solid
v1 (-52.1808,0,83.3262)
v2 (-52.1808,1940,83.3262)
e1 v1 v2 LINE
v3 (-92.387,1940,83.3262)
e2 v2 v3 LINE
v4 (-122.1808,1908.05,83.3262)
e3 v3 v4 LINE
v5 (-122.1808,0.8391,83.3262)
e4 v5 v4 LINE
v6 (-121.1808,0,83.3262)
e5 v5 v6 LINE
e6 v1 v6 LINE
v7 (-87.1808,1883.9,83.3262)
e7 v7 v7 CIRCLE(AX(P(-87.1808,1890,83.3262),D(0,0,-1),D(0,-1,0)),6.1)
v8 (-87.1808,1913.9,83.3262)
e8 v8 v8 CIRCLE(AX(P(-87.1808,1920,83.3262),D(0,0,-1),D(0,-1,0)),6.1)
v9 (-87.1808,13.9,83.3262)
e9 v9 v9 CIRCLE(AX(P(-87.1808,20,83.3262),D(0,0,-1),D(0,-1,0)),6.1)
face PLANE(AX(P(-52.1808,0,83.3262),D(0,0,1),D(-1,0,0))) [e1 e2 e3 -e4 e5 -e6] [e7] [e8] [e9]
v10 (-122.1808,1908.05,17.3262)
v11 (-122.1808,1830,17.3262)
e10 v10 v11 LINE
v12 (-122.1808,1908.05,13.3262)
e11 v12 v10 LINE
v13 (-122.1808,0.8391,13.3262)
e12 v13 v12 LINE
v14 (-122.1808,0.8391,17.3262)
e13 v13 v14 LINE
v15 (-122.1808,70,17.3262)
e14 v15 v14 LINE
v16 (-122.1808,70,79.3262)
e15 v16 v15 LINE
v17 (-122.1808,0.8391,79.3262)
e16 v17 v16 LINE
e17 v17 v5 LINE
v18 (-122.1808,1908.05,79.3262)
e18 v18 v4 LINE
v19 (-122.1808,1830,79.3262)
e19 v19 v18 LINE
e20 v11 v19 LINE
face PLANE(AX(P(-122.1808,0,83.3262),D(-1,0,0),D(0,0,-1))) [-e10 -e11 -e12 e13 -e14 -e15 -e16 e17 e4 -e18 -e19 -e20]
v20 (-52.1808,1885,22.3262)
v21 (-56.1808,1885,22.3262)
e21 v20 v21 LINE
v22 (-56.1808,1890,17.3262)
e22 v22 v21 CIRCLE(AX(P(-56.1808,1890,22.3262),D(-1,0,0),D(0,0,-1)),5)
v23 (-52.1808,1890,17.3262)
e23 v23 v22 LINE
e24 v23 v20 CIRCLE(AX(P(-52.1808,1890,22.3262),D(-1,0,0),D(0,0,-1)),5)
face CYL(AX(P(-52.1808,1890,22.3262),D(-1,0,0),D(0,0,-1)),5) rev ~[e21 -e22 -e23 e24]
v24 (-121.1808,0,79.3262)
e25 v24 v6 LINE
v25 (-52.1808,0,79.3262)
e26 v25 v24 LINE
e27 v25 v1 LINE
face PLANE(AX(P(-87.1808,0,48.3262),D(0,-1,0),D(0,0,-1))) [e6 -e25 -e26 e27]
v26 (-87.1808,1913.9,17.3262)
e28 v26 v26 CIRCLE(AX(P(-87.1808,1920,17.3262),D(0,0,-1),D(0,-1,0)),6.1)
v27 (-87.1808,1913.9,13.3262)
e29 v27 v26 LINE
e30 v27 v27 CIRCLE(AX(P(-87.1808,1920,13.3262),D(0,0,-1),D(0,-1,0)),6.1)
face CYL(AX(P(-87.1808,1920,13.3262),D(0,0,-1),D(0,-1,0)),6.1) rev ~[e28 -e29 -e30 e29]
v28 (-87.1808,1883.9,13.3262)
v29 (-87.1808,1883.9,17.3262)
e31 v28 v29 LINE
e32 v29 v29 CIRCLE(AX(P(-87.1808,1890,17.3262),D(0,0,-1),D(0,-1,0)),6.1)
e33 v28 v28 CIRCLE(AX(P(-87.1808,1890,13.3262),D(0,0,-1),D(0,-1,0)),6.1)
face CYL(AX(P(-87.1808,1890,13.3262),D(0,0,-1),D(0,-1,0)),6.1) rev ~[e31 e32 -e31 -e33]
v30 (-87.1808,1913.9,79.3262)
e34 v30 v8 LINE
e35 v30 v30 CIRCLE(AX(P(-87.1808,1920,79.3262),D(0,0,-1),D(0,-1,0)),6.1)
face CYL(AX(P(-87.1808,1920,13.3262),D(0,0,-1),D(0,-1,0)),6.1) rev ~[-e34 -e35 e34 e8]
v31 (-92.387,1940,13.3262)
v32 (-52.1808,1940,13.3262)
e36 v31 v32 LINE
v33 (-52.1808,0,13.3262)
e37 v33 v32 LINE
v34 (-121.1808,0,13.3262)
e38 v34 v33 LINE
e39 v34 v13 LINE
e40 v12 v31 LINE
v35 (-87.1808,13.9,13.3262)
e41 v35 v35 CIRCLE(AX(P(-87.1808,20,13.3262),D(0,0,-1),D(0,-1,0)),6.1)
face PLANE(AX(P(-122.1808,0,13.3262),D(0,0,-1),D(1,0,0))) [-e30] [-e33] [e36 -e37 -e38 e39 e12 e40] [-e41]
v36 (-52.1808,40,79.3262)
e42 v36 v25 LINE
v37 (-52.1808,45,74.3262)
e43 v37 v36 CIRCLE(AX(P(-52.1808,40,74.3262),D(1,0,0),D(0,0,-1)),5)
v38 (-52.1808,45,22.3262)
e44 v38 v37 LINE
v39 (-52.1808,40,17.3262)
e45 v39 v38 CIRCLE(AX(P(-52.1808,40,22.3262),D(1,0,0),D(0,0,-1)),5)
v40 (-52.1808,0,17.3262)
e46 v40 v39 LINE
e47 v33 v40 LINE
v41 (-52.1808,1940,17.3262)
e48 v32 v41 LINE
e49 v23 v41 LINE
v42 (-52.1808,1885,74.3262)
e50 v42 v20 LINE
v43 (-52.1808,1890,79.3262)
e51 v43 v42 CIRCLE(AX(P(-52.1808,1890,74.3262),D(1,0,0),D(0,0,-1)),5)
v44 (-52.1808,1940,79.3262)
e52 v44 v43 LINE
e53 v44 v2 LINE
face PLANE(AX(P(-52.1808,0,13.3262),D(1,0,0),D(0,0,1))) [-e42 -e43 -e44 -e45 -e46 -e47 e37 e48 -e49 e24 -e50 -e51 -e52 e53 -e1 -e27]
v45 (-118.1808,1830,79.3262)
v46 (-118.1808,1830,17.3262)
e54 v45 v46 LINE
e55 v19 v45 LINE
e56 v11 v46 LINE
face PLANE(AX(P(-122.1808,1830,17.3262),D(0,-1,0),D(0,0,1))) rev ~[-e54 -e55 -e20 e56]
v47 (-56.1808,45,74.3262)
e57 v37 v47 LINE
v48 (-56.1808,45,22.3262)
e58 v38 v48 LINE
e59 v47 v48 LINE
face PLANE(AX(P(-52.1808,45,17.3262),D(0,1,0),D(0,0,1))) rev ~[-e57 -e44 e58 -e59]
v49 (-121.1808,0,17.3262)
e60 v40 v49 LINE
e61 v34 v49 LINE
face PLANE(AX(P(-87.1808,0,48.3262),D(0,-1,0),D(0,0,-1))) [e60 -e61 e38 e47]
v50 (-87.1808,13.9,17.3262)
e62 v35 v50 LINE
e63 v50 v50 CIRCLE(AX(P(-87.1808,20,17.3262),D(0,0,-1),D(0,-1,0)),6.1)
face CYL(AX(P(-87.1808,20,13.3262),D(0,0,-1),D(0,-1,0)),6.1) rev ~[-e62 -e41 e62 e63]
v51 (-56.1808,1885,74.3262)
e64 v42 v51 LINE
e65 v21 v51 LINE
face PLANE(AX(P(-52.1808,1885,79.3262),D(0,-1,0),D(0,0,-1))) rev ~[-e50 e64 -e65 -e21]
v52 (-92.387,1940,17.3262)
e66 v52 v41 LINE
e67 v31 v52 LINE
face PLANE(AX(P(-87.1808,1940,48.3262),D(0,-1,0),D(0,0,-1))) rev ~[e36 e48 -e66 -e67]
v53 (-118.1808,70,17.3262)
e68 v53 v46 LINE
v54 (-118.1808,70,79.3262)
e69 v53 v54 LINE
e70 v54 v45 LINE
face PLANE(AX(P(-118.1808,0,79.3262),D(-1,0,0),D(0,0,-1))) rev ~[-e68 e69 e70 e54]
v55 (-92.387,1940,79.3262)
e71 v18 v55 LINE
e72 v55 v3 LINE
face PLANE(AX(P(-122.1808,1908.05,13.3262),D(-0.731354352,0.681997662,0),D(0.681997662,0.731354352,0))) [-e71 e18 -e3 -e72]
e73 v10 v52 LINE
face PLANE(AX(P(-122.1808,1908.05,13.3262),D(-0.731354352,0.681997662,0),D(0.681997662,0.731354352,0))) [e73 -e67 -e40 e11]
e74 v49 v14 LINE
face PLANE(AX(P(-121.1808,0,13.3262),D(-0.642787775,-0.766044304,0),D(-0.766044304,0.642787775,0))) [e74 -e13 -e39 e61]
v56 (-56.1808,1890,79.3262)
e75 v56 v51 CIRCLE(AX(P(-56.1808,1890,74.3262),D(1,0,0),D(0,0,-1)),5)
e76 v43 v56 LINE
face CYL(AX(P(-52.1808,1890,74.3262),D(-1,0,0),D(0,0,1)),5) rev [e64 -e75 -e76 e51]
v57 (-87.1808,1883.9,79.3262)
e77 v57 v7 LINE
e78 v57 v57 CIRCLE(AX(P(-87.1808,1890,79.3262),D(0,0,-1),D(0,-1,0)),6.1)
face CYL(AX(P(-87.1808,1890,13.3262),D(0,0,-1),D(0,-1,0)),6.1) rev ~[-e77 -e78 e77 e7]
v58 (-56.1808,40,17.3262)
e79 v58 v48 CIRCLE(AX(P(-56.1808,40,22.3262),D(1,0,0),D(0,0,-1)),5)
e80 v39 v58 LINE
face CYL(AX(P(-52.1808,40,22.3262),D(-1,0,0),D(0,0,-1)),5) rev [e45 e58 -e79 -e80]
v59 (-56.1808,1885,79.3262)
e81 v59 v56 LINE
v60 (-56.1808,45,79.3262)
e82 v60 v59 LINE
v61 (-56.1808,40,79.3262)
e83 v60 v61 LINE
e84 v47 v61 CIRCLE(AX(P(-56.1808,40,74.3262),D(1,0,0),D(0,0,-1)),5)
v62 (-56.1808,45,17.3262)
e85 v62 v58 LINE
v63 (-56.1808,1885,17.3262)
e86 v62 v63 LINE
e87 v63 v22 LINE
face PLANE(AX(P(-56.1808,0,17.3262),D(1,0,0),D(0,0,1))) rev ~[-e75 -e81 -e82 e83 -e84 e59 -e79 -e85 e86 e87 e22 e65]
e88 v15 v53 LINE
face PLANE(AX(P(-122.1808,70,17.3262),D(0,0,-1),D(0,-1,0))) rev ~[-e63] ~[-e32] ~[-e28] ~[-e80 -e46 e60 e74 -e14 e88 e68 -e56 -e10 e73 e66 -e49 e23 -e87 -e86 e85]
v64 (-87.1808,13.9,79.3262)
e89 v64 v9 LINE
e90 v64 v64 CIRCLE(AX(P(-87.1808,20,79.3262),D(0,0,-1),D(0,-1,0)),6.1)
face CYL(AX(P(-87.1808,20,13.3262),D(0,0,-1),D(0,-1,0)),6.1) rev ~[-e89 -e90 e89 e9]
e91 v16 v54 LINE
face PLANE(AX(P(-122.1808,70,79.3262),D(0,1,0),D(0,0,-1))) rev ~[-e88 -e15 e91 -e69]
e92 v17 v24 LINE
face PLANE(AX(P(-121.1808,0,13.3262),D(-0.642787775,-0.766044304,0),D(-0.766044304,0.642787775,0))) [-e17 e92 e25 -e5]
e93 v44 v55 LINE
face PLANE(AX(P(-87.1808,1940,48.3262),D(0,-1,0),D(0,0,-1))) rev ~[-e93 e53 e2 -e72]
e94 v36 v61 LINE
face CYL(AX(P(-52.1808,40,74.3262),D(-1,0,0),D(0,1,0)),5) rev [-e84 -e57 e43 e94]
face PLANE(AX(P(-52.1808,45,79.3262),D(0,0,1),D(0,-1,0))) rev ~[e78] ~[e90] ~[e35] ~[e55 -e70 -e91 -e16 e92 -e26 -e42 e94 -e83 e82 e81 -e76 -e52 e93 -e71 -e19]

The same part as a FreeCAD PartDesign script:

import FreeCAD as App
import Part
import Sketcher
from FreeCAD import Vector
Q = App.Units.Quantity


def edges_at(feature, points):
    """Names of the edges that pass closest to the given points."""
    edges = feature.Shape.Edges
    near = lambda p: min(range(len(edges)), key=lambda i: edges[i].distToShape(Part.Vertex(*p))[0])
    return sorted({f"Edge{near(p) + 1}" for p in points})


def add_polygon(sketch, points):
    """Adds a closed chain of lines whose ends are joined by coincident constraints."""
    first, n = sketch.GeometryCount, len(points)
    for a, b in zip(points, points[1:] + points[:1]):
        sketch.addGeometry(Part.LineSegment(App.Vector(*a, 0), App.Vector(*b, 0)), False)
    for i in range(n):
        sketch.addConstraint(Sketcher.Constraint("Coincident", first + i, 2, first + (i + 1) % n, 1))

doc = App.newDocument("Part")
params = doc.addObject("Spreadsheet::Sheet", "Params")
for row, (alias, value) in enumerate([
    ("sketch1_width", "70 mm"),
    ("sketch1_width2", "62 mm"),
    ("pad1_length", "1940 mm"),
    ("sketch2_diameter", "12.2 mm"),
    ("sketch3_width", "45 mm"),
    ("sketch3_width2", "55 mm"),
    ("sketch3_height", "62 mm"),
    ("pocket2_length", "4 mm"),
    ("sketch4_height", "31.95 mm"),
    ("sketch5_width", "1 mm"),
    ("sketch6_width", "110 mm"),
    ("sketch6_height", "62 mm"),
    ("sketch7_width", "70 mm"),
    ("sketch7_height", "62 mm"),
    ("fillet_radius", "5 mm"),
], start=1):
    params.set(f"A{row}", alias)
    params.set(f"B{row}", "=" + value)
    params.setAlias(f"B{row}", alias)

body = doc.addObject("PartDesign::Body", "Body")

# Sketch on XZ plane
sketch1 = body.newObject("Sketcher::SketchObject", "Sketch")
sketch1.AttachmentSupport = (doc.getObject("XZ_Plane"), [""])
sketch1.MapMode = "FlatFace"
add_polygon(sketch1, [(-122, 83), (-122, 13), (-52, 13), (-52, 83)])  # lines 0-3
add_polygon(sketch1, [(-56, 17), (-118, 17), (-118, 79), (-56, 79)])  # lines 4-7
sketch1.addConstraint([
    Sketcher.Constraint("Vertical", 0),
    Sketcher.Constraint("Horizontal", 1),
    Sketcher.Constraint("Vertical", 2),
    Sketcher.Constraint("Horizontal", 3),
    Sketcher.Constraint("Horizontal", 4),
    Sketcher.Constraint("Vertical", 5),
    Sketcher.Constraint("Horizontal", 6),
    Sketcher.Constraint("Vertical", 7),
    Sketcher.Constraint("Equal", 3, 0),
    Sketcher.Constraint("Equal", 6, 5),
    Sketcher.Constraint("DistanceX", 1, 1, 1, 2, Q("70 mm")),
    Sketcher.Constraint("DistanceX", 4, 2, 4, 1, Q("62 mm")),
    Sketcher.Constraint("DistanceX", 0, 2, 4, 2, Q("4 mm")),
    Sketcher.Constraint("DistanceY", 0, 2, 4, 2, Q("4 mm")),
    Sketcher.Constraint("DistanceX", 0, 2, -1, 1, Q("122.1808 mm")),
    Sketcher.Constraint("DistanceY", -1, 1, 0, 2, Q("13.3262 mm")),
])
sketch1.setExpression("Constraints[18]", "Params.sketch1_width")
sketch1.setExpression("Constraints[19]", "Params.sketch1_width2")
pad1 = body.newObject("PartDesign::Pad", "Pad")
pad1.Profile = sketch1
pad1.setExpression("Length", "Params.pad1_length")
pad1.Reversed = True

# Sketch on XY plane
sketch2 = body.newObject("Sketcher::SketchObject", "Sketch001")
sketch2.AttachmentSupport = (doc.getObject("XY_Plane"), [""])
sketch2.MapMode = "FlatFace"
sketch2.AttachmentOffset = App.Placement(Vector(0, 0, 13.3262), App.Rotation())
sketch2.addGeometry([
    Part.Circle(Vector(-87, 1890, 0), Vector(0, 0, 1), 6),
    Part.Circle(Vector(-87, 1920, 0), Vector(0, 0, 1), 6),
    Part.Circle(Vector(-87, 20, 0), Vector(0, 0, 1), 6),
], False)
sketch2.addConstraint([
    Sketcher.Constraint("Equal", 0, 1),
    Sketcher.Constraint("Equal", 1, 2),
    Sketcher.Constraint("Vertical", 0, 3, 1, 3),
    Sketcher.Constraint("Vertical", 1, 3, 2, 3),
    Sketcher.Constraint("Diameter", 0, Q("12.2 mm")),
    Sketcher.Constraint("DistanceY", -1, 1, 0, 3, Q("1890 mm")),
    Sketcher.Constraint("DistanceY", -1, 1, 1, 3, Q("1920 mm")),
    Sketcher.Constraint("DistanceY", -1, 1, 2, 3, Q("20 mm")),
    Sketcher.Constraint("DistanceX", 0, 3, -1, 1, Q("87.1808 mm")),
])
sketch2.setExpression("Constraints[4]", "Params.sketch2_diameter")
pocket1 = body.newObject("PartDesign::Pocket", "Pocket")
pocket1.Profile = sketch2
pocket1.Type = "ThroughAll"
pocket1.Reversed = True

# Sketch on YZ plane
sketch3 = body.newObject("Sketcher::SketchObject", "Sketch002")
sketch3.AttachmentSupport = (doc.getObject("YZ_Plane"), [""])
sketch3.MapMode = "FlatFace"
sketch3.AttachmentOffset = App.Placement(Vector(0, 0, -52.1808), App.Rotation())
add_polygon(sketch3, [(45, 17), (45, 79), (0, 79), (0, 17)])  # lines 0-3
add_polygon(sketch3, [(1940, 17), (1940, 79), (1885, 79), (1885, 17)])  # lines 4-7
sketch3.addConstraint([
    Sketcher.Constraint("Vertical", 0),
    Sketcher.Constraint("Horizontal", 1),
    Sketcher.Constraint("Vertical", 2),
    Sketcher.Constraint("Horizontal", 3),
    Sketcher.Constraint("Vertical", 4),
    Sketcher.Constraint("Horizontal", 5),
    Sketcher.Constraint("Vertical", 6),
    Sketcher.Constraint("Horizontal", 7),
    Sketcher.Constraint("PointOnObject", 1, 2, -2),
    Sketcher.Constraint("Horizontal", 1, 2, 4, 2),
    Sketcher.Constraint("Horizontal", 3, 2, 6, 2),
    Sketcher.Constraint("DistanceX", 1, 2, 1, 1, Q("45 mm")),
    Sketcher.Constraint("DistanceX", 5, 2, 5, 1, Q("55 mm")),
    Sketcher.Constraint("DistanceY", 0, 1, 0, 2, Q("62 mm")),
    Sketcher.Constraint("DistanceX", -1, 1, 4, 2, Q("1940 mm")),
    Sketcher.Constraint("DistanceY", -1, 1, 0, 2, Q("79.3262 mm")),
])
sketch3.setExpression("Constraints[19]", "Params.sketch3_width")
sketch3.setExpression("Constraints[20]", "Params.sketch3_width2")
sketch3.setExpression("Constraints[21]", "Params.sketch3_height")
pocket2 = body.newObject("PartDesign::Pocket", "Pocket001")
pocket2.Profile = sketch3
pocket2.setExpression("Length", "Params.pocket2_length")

# Sketch on XY plane
sketch4 = body.newObject("Sketcher::SketchObject", "Sketch003")
sketch4.AttachmentSupport = (doc.getObject("XY_Plane"), [""])
sketch4.MapMode = "FlatFace"
sketch4.AttachmentOffset = App.Placement(Vector(0, 0, 13.3262), App.Rotation())
add_polygon(sketch4, [(-122, 1908), (-122, 1940), (-92, 1940)])  # lines 0-2
sketch4.addConstraint([
    Sketcher.Constraint("Vertical", 0),
    Sketcher.Constraint("Horizontal", 1),
    Sketcher.Constraint("Angle", 2, Q("-133 deg")),
    Sketcher.Constraint("DistanceY", -1, 1, 0, 2, Q("1940 mm")),
    Sketcher.Constraint("DistanceY", 0, 1, 0, 2, Q("31.95 mm")),
    Sketcher.Constraint("DistanceX", 1, 2, -1, 1, Q("92.387 mm")),
])
sketch4.setExpression("Constraints[7]", "Params.sketch4_height")
pocket3 = body.newObject("PartDesign::Pocket", "Pocket002")
pocket3.Profile = sketch4
pocket3.Type = "ThroughAll"
pocket3.Reversed = True

# Sketch on XY plane
sketch5 = body.newObject("Sketcher::SketchObject", "Sketch004")
sketch5.AttachmentSupport = (doc.getObject("XY_Plane"), [""])
sketch5.MapMode = "FlatFace"
sketch5.AttachmentOffset = App.Placement(Vector(0, 0, 13.3262), App.Rotation())
add_polygon(sketch5, [(-122.2, 0.8), (-121.2, 0), (-122.2, 0)])  # lines 0-2
sketch5.addConstraint([
    Sketcher.Constraint("Horizontal", 1),
    Sketcher.Constraint("Vertical", 2),
    Sketcher.Constraint("PointOnObject", 0, 2, -1),
    Sketcher.Constraint("DistanceX", 1, 2, 1, 1, Q("1 mm")),
    Sketcher.Constraint("Angle", 0, Q("-40 deg")),
    Sketcher.Constraint("DistanceX", 0, 2, -1, 1, Q("121.1808 mm")),
])
sketch5.setExpression("Constraints[6]", "Params.sketch5_width")
pocket4 = body.newObject("PartDesign::Pocket", "Pocket003")
pocket4.Profile = sketch5
pocket4.Type = "ThroughAll"
pocket4.Reversed = True

# Sketch on YZ plane
sketch6 = body.newObject("Sketcher::SketchObject", "Sketch005")
sketch6.AttachmentSupport = (doc.getObject("YZ_Plane"), [""])
sketch6.MapMode = "FlatFace"
sketch6.AttachmentOffset = App.Placement(Vector(0, 0, -122.1808), App.Rotation())
add_polygon(sketch6, [(1940, 79), (1940, 17), (1830, 17), (1830, 79)])  # lines 0-3
sketch6.addConstraint([
    Sketcher.Constraint("Vertical", 0),
    Sketcher.Constraint("Horizontal", 1),
    Sketcher.Constraint("Vertical", 2),
    Sketcher.Constraint("Horizontal", 3),
    Sketcher.Constraint("DistanceX", 1, 2, 1, 1, Q("110 mm")),
    Sketcher.Constraint("DistanceY", 0, 2, 0, 1, Q("62 mm")),
    Sketcher.Constraint("DistanceX", -1, 1, 0, 2, Q("1940 mm")),
    Sketcher.Constraint("DistanceY", -1, 1, 0, 2, Q("17.3262 mm")),
])
sketch6.setExpression("Constraints[8]", "Params.sketch6_width")
sketch6.setExpression("Constraints[9]", "Params.sketch6_height")
pocket5 = body.newObject("PartDesign::Pocket", "Pocket004")
pocket5.Profile = sketch6
pocket5.Type = "UpToFirst"
pocket5.Reversed = True

# Sketch on YZ plane
sketch7 = body.newObject("Sketcher::SketchObject", "Sketch006")
sketch7.AttachmentSupport = (doc.getObject("YZ_Plane"), [""])
sketch7.MapMode = "FlatFace"
sketch7.AttachmentOffset = App.Placement(Vector(0, 0, -122.1808), App.Rotation())
add_polygon(sketch7, [(0, 17), (0, 79), (70, 79), (70, 17)])  # lines 0-3
sketch7.addConstraint([
    Sketcher.Constraint("Vertical", 0),
    Sketcher.Constraint("Horizontal", 1),
    Sketcher.Constraint("Vertical", 2),
    Sketcher.Constraint("Horizontal", 3),
    Sketcher.Constraint("PointOnObject", 0, 2, -2),
    Sketcher.Constraint("DistanceX", 1, 1, 1, 2, Q("70 mm")),
    Sketcher.Constraint("DistanceY", 0, 1, 0, 2, Q("62 mm")),
    Sketcher.Constraint("DistanceY", -1, 1, 0, 2, Q("79.3262 mm")),
])
sketch7.setExpression("Constraints[9]", "Params.sketch7_width")
sketch7.setExpression("Constraints[10]", "Params.sketch7_height")
pocket6 = body.newObject("PartDesign::Pocket", "Pocket005")
pocket6.Profile = sketch7
pocket6.Type = "UpToFirst"
pocket6.Reversed = True
doc.recompute()

fillet = body.newObject("PartDesign::Fillet", "Fillet")
fillet.Base = (pocket6, edges_at(pocket6, [
    (-54.181, 45, 79.326),
    (-54.181, 45, 17.326),
    (-54.181, 1885, 79.326),
    (-54.181, 1885, 17.326),
]))
fillet.setExpression("Radius", "Params.fillet_radius")

doc.recompute()
